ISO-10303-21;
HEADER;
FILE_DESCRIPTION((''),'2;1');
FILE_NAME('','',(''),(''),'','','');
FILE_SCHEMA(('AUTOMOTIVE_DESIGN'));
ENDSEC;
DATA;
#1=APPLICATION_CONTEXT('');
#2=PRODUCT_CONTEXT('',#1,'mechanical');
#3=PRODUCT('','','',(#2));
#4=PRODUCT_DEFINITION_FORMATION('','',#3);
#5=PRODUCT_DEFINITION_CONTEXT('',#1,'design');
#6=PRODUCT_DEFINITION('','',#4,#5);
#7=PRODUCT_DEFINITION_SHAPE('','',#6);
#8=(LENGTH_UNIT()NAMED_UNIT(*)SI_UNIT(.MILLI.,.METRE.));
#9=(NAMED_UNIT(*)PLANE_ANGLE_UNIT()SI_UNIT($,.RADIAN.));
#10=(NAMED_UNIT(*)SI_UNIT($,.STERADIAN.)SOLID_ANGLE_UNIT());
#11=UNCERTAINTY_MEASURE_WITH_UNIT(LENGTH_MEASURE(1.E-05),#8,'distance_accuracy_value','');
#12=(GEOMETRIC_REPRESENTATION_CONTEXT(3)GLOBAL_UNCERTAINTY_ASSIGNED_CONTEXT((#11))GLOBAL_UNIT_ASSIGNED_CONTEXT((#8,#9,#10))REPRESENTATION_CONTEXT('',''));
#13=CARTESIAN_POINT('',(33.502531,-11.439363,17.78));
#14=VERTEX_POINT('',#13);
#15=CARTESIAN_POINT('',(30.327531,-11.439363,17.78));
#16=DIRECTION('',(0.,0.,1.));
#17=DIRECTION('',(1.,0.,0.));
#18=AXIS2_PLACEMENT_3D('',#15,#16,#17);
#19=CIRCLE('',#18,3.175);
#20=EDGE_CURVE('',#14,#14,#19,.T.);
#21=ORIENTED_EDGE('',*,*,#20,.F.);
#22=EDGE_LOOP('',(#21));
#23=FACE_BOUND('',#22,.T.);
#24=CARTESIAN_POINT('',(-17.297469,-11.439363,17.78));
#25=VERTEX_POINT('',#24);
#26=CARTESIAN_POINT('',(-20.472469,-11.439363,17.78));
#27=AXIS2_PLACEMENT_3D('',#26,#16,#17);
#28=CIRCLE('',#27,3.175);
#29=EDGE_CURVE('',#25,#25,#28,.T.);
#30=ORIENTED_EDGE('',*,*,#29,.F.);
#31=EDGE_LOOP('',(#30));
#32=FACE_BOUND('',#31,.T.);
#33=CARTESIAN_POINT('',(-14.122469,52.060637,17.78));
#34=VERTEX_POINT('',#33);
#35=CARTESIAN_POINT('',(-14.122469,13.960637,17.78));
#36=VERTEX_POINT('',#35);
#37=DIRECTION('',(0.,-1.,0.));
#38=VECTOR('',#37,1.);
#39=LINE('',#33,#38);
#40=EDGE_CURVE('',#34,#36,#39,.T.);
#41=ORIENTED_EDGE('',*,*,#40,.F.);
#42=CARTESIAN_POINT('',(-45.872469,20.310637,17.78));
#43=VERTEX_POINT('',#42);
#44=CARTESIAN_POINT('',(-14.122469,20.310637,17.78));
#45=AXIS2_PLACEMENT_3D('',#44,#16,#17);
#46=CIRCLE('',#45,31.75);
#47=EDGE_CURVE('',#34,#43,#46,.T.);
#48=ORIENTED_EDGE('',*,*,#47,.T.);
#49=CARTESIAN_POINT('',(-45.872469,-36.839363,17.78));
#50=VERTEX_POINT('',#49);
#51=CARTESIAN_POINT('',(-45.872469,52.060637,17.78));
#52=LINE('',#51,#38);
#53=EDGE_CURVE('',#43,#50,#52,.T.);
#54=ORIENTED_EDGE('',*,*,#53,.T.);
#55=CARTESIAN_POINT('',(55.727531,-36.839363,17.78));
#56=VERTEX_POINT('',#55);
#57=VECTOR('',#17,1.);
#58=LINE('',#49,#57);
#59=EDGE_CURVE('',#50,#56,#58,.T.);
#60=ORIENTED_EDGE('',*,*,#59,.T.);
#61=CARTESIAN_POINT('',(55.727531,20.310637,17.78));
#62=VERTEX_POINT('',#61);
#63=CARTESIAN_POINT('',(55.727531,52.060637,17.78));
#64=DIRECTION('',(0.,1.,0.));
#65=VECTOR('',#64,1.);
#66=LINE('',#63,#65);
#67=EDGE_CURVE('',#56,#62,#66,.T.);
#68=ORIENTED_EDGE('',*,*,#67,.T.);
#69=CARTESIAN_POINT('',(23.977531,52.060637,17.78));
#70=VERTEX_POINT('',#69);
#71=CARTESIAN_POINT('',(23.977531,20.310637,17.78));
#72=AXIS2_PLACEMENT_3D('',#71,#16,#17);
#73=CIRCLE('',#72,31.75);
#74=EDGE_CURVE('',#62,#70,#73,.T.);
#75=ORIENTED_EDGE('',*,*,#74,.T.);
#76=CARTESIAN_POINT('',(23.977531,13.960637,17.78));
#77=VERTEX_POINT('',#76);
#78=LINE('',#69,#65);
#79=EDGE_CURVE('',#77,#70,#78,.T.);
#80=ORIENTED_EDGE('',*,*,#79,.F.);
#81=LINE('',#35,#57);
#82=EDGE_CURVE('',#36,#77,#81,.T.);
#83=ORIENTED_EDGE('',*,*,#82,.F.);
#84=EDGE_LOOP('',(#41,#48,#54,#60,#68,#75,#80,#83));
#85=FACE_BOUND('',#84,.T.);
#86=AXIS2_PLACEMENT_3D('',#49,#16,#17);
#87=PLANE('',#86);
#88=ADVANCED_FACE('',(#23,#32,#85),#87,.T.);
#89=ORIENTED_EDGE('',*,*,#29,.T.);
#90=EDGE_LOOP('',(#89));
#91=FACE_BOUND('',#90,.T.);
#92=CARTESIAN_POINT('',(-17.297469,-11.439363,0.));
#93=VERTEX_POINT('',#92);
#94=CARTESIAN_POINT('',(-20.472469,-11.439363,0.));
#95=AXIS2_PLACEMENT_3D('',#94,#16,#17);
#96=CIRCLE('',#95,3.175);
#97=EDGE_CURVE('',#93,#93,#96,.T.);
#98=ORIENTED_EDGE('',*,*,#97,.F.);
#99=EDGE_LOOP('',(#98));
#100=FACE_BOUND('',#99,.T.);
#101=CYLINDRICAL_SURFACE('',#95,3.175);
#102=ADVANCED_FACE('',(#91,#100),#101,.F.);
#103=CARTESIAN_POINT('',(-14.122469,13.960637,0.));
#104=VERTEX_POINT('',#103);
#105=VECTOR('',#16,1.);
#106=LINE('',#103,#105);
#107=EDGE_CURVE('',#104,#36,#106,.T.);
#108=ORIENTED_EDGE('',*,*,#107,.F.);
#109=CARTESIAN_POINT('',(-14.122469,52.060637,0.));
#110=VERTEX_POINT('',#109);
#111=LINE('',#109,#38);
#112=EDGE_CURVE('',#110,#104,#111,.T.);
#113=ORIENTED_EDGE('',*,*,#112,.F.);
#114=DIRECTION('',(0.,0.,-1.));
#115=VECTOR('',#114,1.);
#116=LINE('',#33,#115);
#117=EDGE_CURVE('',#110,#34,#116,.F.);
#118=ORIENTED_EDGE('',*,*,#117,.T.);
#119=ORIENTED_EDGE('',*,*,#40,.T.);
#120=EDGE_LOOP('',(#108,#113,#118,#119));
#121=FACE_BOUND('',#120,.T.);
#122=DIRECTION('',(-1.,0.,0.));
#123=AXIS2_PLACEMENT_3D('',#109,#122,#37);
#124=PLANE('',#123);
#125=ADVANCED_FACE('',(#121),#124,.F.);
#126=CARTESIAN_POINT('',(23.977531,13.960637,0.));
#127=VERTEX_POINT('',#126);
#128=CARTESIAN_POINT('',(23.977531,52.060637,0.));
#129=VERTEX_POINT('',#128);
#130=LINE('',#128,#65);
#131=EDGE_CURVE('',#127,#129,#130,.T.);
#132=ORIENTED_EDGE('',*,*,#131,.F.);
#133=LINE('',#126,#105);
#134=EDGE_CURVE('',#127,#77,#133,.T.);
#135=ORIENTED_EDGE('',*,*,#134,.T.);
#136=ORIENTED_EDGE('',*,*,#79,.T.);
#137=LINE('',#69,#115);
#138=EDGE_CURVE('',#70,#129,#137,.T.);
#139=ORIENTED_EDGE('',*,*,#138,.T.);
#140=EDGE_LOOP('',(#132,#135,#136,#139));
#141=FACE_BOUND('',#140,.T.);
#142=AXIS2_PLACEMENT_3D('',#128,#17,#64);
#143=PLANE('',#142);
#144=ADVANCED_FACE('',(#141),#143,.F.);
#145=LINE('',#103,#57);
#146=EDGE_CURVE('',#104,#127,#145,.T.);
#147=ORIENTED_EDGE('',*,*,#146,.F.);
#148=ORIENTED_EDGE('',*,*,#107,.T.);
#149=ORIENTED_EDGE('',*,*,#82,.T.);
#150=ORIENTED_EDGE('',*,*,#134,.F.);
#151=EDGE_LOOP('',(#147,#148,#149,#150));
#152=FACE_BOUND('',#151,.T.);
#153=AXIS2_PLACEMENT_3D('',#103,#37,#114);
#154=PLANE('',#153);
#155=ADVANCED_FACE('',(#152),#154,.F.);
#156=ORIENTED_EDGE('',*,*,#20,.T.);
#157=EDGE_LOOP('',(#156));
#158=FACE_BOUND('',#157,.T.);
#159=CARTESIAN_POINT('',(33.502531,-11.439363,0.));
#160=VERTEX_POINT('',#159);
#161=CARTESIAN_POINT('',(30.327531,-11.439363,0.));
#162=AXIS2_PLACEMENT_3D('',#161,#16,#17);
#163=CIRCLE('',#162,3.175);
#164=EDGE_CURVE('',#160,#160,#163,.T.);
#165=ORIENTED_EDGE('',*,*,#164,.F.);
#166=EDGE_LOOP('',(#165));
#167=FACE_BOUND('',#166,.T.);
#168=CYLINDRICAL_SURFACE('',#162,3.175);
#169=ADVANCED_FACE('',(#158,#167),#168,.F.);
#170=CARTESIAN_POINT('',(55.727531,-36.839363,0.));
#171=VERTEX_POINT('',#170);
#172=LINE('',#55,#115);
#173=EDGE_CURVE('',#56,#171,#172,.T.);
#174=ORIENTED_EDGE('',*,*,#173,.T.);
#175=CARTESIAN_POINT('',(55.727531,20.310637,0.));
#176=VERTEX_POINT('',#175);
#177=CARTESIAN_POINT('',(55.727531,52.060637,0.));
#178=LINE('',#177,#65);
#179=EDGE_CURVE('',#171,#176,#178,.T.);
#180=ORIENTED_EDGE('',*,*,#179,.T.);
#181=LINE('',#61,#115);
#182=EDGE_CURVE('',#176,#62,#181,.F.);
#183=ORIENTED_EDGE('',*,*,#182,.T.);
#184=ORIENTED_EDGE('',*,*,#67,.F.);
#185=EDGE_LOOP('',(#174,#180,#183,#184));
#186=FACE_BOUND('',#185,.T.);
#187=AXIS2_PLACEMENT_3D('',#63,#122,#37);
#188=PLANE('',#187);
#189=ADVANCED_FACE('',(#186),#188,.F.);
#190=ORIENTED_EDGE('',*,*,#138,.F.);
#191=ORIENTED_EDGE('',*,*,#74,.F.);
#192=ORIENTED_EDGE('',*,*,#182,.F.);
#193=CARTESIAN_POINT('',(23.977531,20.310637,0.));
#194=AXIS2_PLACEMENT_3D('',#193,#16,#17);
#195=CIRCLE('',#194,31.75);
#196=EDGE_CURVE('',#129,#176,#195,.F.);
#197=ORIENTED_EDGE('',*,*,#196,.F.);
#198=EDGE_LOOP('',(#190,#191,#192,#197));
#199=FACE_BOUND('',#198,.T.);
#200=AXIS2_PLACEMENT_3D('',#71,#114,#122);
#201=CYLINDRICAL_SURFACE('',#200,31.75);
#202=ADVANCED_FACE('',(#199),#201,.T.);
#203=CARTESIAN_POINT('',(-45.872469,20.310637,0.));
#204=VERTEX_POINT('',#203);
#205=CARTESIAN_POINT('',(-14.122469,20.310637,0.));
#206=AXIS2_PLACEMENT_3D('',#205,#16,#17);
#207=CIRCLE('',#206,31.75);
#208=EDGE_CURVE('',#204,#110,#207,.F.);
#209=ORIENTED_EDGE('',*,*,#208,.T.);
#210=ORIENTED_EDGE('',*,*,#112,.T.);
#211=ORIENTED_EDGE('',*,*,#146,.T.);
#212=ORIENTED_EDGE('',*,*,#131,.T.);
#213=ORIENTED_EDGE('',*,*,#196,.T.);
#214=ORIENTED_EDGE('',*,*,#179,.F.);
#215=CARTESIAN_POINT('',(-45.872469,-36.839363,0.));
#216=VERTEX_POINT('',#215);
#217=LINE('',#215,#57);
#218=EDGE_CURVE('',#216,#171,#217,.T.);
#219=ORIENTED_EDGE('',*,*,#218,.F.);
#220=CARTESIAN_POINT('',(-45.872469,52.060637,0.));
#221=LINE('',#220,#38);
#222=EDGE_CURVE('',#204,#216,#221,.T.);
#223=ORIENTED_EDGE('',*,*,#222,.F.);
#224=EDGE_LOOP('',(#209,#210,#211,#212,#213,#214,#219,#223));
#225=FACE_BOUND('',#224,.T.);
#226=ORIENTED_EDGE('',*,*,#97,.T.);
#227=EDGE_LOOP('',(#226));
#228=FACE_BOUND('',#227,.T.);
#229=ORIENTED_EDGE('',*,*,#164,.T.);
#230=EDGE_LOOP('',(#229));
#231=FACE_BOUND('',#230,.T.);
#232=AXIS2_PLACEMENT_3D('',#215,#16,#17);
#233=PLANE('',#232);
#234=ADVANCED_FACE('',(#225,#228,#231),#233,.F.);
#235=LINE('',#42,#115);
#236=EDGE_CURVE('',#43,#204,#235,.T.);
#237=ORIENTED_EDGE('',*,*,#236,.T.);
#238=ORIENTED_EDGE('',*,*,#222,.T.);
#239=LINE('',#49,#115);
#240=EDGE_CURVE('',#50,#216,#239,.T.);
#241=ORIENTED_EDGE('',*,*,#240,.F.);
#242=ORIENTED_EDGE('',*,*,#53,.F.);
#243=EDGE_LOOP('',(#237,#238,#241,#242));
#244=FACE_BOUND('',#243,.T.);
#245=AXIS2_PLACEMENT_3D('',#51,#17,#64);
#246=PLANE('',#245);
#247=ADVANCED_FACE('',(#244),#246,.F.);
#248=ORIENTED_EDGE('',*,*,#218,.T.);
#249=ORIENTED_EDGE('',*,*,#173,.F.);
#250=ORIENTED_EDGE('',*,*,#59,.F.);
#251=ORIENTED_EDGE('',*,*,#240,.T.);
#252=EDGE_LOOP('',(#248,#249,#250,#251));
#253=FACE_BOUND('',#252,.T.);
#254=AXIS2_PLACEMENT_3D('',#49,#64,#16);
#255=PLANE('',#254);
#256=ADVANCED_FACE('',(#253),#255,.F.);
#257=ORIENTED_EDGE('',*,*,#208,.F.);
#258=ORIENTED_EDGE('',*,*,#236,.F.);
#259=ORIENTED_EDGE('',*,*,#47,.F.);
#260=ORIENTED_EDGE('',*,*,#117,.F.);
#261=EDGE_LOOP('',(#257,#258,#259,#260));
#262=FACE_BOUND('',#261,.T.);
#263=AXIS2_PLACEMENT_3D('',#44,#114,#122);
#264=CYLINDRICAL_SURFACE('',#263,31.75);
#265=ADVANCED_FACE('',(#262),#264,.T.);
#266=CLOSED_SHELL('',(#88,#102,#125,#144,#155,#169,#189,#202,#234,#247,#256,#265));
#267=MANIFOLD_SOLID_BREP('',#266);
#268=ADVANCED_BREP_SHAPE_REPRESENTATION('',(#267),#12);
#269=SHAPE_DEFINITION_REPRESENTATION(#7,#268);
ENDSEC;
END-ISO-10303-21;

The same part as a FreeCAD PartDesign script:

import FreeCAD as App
import Part
import Sketcher

V = App.Vector
Q = App.Units.Quantity


def edges_at(feature, points):
    """Names of the edges that pass closest to the given points."""
    edges = feature.Shape.Edges
    near = lambda p: min(range(len(edges)), key=lambda i: edges[i].distToShape(Part.Vertex(*p))[0])
    return sorted({f"Edge{near(p) + 1}" for p in points})


def add_polygon(sketch, points):
    """Adds a closed chain of lines whose ends are joined by coincident constraints."""
    first, n = sketch.GeometryCount, len(points)
    for a, b in zip(points, points[1:] + points[:1]):
        sketch.addGeometry(Part.LineSegment(App.Vector(*a, 0), App.Vector(*b, 0)), False)
    for i in range(n):
        sketch.addConstraint(Sketcher.Constraint("Coincident", first + i, 2, first + (i + 1) % n, 1))

doc = App.newDocument("Part")
body = doc.addObject("PartDesign::Body", "Body")

sketch1 = body.newObject("Sketcher::SketchObject", "Sketch")
sketch1.AttachmentSupport = (doc.getObject("XY_Plane"), [""])
sketch1.MapMode = "FlatFace"
add_polygon(sketch1, [(-45.872469, 52.060637), (-45.872469, -36.839363), (55.727531, -36.839363), (55.727531, 52.060637)])
sketch1.addConstraint([
    Sketcher.Constraint("Vertical", 0),
    Sketcher.Constraint("Horizontal", 1),
    Sketcher.Constraint("Vertical", 2),
    Sketcher.Constraint("Horizontal", 3),
    Sketcher.Constraint("DistanceX", 1, 1, 1, 2, Q("4 in")),
    Sketcher.Constraint("DistanceY", 0, 2, 0, 1, Q("3.5 in")),
    Sketcher.Constraint("DistanceX", 0, 2, -1, 1, 45.872469),
    Sketcher.Constraint("DistanceY", 0, 2, -1, 1, 36.839363),
])
pad1 = body.newObject("PartDesign::Pad", "Pad")
pad1.Profile = sketch1
pad1.Length = Q("0.7 in")

sketch2 = body.newObject("Sketcher::SketchObject", "Sketch001")
sketch2.AttachmentSupport = (doc.getObject("XY_Plane"), [""])
sketch2.MapMode = "FlatFace"
sketch2.AttachmentOffset = App.Placement(V(0, 0, 0.7 * 25.4), App.Rotation())
sketch2.addGeometry([
    Part.Circle(V(-20.472469, -11.439363, 0), V(0, 0, 1), 3.175),
    Part.Circle(V(30.327531, -11.439363, 0), V(0, 0, 1), 3.175),
], False)
sketch2.addConstraint([
    Sketcher.Constraint("Equal", 0, 1),
    Sketcher.Constraint("Horizontal", 0, 3, 1, 3),
    Sketcher.Constraint("Diameter", 0, Q("0.25 in")),
    Sketcher.Constraint("DistanceX", 0, 3, 1, 3, Q("2 in")),
    Sketcher.Constraint("DistanceX", 0, 3, -1, 1, 20.472469),
    Sketcher.Constraint("DistanceY", 0, 3, -1, 1, 11.439363),
])
pocket1 = body.newObject("PartDesign::Pocket", "Pocket")
pocket1.Profile = sketch2
pocket1.Type = "ThroughAll"
doc.recompute()

fillet = body.newObject("PartDesign::Fillet", "Fillet")
fillet.Base = (pocket1, edges_at(pocket1, [(-45.872, 52.061, 8.89), (55.728, 52.061, 8.89)]))
fillet.Radius = Q("1.25 in")

sketch3 = body.newObject("Sketcher::SketchObject", "Sketch002")
sketch3.AttachmentSupport = (doc.getObject("XY_Plane"), [""])
sketch3.MapMode = "FlatFace"
sketch3.AttachmentOffset = App.Placement(V(0, 0, 0.7 * 25.4), App.Rotation())
add_polygon(sketch3, [(-14.122469, 52.060637), (-14.122469, 13.960637), (23.977531, 13.960637), (23.977531, 52.060637)])
sketch3.addConstraint([
    Sketcher.Constraint("Vertical", 0),
    Sketcher.Constraint("Horizontal", 1),
    Sketcher.Constraint("Vertical", 2),
    Sketcher.Constraint("Horizontal", 3),
    Sketcher.Constraint("Equal", 3, 0),
    Sketcher.Constraint("DistanceX", 1, 1, 1, 2, Q("1.5 in")),
    Sketcher.Constraint("DistanceX", 0, 2, -1, 1, 14.122469),
    Sketcher.Constraint("DistanceY", -1, 1, 0, 2, 13.960637),
])
pocket2 = body.newObject("PartDesign::Pocket", "Pocket001")
pocket2.Profile = sketch3
pocket2.Type = "ThroughAll"

doc.recompute()
